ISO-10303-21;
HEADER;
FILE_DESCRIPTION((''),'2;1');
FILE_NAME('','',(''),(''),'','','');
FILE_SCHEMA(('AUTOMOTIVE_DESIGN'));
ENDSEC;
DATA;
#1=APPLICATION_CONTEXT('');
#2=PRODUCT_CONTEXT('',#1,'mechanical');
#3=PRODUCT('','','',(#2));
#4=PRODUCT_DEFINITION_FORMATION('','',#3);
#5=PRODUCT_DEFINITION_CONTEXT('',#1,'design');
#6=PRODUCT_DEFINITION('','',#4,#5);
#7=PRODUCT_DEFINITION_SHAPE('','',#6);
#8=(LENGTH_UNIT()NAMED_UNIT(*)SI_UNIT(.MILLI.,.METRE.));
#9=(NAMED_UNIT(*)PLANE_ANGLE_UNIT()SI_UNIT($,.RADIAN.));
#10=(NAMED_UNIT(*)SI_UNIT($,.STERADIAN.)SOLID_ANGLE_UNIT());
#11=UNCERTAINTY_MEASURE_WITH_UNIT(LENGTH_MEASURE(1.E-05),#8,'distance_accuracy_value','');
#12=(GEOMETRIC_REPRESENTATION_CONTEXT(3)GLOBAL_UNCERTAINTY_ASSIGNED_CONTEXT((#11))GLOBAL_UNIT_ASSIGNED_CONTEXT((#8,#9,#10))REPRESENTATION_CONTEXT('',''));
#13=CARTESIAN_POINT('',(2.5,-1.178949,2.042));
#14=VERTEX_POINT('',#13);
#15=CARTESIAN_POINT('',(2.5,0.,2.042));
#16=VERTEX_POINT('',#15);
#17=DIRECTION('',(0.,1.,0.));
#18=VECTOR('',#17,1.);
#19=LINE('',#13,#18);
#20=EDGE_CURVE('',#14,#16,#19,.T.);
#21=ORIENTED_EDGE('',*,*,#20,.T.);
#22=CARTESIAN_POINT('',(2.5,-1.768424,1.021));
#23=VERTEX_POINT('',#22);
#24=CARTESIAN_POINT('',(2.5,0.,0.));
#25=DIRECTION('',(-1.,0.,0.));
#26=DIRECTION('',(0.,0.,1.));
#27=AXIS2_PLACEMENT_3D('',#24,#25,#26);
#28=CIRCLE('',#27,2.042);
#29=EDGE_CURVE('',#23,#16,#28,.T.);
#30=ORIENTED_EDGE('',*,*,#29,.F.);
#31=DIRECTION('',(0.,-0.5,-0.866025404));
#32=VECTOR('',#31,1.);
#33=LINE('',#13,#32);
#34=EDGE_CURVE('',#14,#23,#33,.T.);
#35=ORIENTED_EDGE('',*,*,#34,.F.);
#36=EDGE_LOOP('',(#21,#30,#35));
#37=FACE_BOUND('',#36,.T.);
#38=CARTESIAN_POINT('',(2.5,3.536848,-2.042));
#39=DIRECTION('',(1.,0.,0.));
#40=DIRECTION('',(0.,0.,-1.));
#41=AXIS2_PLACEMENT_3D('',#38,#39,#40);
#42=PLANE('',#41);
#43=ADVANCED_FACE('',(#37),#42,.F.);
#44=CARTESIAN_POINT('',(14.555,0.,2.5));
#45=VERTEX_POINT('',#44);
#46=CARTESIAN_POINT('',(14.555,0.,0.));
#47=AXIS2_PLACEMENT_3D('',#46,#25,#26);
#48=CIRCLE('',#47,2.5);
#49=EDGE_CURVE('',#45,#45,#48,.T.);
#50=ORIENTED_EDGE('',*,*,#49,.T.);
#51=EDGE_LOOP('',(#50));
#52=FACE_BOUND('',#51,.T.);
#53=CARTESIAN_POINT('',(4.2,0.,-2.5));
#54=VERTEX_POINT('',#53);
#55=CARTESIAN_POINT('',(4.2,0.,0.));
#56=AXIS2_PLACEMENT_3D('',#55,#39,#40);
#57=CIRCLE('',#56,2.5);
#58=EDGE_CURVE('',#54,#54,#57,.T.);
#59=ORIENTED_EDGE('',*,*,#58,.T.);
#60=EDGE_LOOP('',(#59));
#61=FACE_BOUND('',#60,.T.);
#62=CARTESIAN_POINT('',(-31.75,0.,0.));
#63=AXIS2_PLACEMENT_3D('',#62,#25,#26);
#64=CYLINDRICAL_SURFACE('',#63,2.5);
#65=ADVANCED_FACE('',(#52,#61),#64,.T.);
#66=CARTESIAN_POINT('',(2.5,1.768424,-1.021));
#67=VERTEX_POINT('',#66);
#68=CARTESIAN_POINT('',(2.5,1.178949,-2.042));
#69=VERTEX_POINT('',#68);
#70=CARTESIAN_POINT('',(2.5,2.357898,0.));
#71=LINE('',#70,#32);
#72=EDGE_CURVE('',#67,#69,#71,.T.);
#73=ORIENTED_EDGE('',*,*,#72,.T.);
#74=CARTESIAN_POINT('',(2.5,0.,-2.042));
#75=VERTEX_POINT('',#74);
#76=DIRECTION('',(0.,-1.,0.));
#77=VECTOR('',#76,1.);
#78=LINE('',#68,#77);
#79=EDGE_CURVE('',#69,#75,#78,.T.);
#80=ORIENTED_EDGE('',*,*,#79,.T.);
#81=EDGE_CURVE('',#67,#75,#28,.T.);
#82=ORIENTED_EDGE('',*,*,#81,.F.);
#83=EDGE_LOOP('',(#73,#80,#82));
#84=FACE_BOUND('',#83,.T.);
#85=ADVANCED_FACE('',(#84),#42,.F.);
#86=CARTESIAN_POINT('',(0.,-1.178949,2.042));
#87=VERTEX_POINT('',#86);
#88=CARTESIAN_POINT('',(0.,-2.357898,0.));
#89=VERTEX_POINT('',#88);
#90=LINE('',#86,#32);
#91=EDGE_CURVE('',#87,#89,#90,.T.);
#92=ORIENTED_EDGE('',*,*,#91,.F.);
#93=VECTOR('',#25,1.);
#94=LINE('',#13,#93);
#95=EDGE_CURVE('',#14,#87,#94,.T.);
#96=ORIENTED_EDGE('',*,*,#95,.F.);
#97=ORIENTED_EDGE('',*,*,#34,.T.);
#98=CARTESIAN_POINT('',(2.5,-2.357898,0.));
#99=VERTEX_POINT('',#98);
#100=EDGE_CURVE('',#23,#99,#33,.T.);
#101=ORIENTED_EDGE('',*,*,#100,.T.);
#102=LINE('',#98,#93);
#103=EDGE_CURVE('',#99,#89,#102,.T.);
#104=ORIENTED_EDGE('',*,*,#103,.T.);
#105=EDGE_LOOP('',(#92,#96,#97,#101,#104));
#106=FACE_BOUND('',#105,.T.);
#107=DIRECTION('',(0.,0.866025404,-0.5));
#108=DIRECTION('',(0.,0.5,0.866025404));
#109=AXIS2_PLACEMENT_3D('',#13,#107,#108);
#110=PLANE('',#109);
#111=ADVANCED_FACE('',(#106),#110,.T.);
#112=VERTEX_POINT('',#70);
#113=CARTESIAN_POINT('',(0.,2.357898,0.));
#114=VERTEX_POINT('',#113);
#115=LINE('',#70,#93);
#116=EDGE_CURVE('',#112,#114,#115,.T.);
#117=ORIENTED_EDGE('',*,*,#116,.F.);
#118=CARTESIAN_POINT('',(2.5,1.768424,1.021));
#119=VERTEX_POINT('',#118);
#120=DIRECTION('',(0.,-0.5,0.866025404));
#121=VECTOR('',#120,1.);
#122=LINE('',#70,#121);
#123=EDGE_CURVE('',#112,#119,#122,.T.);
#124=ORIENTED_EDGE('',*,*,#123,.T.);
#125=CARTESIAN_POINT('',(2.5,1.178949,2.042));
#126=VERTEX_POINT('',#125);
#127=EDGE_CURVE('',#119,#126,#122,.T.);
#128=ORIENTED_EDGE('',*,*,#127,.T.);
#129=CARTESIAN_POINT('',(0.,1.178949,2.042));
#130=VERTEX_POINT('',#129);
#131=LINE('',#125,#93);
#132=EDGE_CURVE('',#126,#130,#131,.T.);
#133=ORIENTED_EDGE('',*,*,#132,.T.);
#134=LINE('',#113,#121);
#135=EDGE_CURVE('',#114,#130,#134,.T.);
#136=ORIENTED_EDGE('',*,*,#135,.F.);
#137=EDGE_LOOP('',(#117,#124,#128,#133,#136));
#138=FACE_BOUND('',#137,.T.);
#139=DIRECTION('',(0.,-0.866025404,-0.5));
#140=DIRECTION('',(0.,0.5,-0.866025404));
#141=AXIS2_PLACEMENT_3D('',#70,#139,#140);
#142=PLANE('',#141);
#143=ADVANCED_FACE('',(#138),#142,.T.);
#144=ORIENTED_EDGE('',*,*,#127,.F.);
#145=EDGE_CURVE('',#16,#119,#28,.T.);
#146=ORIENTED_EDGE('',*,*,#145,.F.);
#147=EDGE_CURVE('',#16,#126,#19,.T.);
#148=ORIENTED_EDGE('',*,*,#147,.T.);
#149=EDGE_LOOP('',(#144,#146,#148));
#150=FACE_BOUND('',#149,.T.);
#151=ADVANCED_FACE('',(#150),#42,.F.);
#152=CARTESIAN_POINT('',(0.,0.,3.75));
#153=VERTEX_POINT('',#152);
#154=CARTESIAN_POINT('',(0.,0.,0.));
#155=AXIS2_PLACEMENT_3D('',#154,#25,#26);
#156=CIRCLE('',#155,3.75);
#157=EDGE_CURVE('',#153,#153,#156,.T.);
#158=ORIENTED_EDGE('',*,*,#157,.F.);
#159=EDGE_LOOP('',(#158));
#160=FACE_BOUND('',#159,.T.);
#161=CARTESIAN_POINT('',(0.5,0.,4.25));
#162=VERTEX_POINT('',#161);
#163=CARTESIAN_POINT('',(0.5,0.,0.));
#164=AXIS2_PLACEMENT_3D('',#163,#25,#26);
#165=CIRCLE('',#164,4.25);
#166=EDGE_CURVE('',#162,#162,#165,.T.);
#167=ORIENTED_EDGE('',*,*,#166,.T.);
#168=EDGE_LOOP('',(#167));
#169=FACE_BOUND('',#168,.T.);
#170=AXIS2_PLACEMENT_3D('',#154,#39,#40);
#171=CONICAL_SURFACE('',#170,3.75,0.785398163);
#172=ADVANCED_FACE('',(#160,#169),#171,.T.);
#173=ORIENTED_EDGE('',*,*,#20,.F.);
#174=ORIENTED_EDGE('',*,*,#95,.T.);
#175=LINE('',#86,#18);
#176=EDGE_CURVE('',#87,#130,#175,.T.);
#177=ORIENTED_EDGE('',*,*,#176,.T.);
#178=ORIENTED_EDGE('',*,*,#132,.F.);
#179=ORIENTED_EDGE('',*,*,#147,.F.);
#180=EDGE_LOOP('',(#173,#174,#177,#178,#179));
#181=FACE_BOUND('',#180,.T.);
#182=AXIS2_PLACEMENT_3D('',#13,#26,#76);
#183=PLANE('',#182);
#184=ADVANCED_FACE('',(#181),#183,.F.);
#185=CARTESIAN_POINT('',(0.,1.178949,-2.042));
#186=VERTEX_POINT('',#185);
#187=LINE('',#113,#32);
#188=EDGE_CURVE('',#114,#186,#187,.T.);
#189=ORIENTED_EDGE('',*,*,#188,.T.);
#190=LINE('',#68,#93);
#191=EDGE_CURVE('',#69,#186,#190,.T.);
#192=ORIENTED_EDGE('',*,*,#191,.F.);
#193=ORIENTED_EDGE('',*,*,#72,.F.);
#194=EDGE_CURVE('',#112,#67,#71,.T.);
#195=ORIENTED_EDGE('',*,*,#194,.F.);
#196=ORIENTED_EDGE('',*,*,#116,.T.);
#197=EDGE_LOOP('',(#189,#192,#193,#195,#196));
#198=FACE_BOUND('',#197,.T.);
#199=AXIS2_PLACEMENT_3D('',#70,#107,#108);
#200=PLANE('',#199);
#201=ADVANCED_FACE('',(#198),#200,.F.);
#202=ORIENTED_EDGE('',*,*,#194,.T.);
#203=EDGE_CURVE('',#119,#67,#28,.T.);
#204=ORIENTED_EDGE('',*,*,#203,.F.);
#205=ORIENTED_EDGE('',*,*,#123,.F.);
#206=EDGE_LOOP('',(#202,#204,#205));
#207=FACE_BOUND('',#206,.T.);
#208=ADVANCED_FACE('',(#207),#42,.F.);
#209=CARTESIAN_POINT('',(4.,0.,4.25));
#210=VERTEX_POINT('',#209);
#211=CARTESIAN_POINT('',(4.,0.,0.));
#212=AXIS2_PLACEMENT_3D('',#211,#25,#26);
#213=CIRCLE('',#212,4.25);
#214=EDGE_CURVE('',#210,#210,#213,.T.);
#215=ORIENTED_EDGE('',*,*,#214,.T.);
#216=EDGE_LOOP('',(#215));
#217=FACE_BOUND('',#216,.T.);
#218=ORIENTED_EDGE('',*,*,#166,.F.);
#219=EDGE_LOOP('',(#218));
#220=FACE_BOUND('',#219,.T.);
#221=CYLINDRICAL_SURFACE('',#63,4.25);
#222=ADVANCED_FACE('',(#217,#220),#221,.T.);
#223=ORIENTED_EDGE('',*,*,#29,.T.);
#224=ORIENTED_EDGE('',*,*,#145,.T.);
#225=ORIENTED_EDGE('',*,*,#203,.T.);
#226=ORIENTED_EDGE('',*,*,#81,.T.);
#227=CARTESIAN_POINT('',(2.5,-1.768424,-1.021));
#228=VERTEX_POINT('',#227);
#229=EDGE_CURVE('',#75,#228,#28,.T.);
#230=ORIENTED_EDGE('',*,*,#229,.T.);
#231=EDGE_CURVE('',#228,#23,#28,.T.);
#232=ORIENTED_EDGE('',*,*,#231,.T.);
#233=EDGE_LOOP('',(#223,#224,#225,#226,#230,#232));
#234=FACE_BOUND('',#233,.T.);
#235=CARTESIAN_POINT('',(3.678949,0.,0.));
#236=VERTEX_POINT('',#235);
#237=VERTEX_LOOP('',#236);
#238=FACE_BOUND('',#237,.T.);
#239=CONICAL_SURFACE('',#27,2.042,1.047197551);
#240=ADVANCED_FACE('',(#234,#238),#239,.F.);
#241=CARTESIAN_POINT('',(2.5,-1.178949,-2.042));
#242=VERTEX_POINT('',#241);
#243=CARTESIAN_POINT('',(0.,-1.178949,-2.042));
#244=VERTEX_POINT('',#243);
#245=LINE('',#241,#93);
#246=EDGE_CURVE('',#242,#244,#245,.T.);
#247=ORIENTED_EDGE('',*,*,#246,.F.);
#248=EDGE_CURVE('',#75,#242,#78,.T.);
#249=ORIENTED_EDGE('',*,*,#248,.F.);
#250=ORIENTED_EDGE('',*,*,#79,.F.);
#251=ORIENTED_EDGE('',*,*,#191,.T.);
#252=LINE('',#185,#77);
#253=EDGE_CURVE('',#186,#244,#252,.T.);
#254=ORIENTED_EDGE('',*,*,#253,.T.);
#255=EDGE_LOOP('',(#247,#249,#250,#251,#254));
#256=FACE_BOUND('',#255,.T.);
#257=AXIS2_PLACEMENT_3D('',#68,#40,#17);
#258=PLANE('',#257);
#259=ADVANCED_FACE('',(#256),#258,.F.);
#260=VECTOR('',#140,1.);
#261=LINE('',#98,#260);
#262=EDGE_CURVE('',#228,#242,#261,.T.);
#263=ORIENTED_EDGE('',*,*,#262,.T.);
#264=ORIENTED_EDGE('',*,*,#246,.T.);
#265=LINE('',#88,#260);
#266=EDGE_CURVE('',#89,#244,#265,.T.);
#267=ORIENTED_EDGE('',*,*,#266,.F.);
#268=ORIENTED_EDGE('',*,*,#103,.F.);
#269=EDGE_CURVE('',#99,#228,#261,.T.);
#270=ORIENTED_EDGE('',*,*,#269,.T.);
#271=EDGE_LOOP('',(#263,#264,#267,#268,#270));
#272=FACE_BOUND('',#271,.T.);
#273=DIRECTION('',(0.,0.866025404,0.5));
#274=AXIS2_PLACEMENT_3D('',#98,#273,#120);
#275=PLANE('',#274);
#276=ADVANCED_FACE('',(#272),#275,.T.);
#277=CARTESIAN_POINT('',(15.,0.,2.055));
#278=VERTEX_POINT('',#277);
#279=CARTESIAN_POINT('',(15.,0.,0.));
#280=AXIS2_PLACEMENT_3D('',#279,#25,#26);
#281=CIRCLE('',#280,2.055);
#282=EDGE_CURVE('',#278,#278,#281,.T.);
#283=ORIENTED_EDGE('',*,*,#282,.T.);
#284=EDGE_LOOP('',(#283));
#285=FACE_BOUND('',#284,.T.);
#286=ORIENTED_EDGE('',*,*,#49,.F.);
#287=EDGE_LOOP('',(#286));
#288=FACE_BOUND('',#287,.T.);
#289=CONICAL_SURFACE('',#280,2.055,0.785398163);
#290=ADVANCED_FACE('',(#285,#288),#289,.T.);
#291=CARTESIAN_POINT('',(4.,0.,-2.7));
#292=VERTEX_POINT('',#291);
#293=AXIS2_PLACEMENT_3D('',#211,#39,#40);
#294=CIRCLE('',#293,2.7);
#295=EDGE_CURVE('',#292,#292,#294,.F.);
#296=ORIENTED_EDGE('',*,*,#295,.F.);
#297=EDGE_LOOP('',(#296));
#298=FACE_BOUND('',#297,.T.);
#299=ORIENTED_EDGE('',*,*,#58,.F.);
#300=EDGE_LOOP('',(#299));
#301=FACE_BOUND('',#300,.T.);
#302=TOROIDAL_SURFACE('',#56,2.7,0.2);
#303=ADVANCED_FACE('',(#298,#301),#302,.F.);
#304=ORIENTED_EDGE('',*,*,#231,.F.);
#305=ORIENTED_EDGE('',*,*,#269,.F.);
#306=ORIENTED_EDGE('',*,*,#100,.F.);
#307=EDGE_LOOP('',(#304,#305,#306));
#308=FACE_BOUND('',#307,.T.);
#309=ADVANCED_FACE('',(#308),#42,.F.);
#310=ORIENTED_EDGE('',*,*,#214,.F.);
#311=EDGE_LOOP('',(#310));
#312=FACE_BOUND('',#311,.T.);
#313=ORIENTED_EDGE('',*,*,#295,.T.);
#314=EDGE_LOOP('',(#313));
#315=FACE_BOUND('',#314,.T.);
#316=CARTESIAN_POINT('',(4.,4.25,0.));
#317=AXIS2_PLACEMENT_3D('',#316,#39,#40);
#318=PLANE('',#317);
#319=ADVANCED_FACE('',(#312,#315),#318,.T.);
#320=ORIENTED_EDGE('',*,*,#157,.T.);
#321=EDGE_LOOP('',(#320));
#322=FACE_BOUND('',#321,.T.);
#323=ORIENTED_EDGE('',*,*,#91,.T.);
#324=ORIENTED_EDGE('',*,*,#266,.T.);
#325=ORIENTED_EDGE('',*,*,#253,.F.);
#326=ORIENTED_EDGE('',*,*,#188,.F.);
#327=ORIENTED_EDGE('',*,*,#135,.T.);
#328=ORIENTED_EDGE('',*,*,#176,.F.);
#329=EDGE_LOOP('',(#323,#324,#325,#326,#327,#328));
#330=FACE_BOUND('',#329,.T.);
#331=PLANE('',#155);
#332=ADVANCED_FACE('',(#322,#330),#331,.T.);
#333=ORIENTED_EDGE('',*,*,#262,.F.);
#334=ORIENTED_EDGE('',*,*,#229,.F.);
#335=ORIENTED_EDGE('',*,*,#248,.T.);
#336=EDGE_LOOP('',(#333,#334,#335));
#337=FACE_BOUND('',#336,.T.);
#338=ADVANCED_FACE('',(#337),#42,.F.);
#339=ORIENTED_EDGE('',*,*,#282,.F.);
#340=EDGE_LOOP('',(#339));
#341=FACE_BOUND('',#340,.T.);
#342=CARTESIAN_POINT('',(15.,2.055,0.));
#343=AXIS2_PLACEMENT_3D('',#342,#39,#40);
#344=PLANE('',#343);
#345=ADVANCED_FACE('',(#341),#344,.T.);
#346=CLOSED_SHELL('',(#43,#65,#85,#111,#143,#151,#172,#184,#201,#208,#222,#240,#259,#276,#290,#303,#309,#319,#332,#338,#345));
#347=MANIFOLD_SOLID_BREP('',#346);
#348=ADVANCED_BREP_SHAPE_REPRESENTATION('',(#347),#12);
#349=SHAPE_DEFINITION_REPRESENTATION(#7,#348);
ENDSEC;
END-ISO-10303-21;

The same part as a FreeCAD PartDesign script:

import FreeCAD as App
import Part
import Sketcher
Q = App.Units.Quantity


def edges_at(feature, points):
    """Names of the edges that pass closest to the given points."""
    edges = feature.Shape.Edges
    near = lambda p: min(range(len(edges)), key=lambda i: edges[i].distToShape(Part.Vertex(*p))[0])
    return sorted({f"Edge{near(p) + 1}" for p in points})


def add_polygon(sketch, points):
    """Adds a closed chain of lines whose ends are joined by coincident constraints."""
    first, n = sketch.GeometryCount, len(points)
    for a, b in zip(points, points[1:] + points[:1]):
        sketch.addGeometry(Part.LineSegment(App.Vector(*a, 0), App.Vector(*b, 0)), False)
    for i in range(n):
        sketch.addConstraint(Sketcher.Constraint("Coincident", first + i, 2, first + (i + 1) % n, 1))

doc = App.newDocument("Part")
body = doc.addObject("PartDesign::Body", "Body")

# Sketch on XY plane
sketch1 = body.newObject("Sketcher::SketchObject", "Sketch")
sketch1.AttachmentSupport = (doc.getObject("XY_Plane"), [""])
sketch1.MapMode = "FlatFace"
add_polygon(sketch1, [(0, 3.8), (0, 0), (15, 0), (15, 2.1), (14.6, 2.5), (4, 2.5), (4, 4.2), (0.5, 4.2)])  # lines 0-7
sketch1.addConstraint([
    Sketcher.Constraint("Vertical", 0),
    Sketcher.Constraint("Horizontal", 1),
    Sketcher.Constraint("Vertical", 2),
    Sketcher.Constraint("Horizontal", 4),
    Sketcher.Constraint("Vertical", 5),
    Sketcher.Constraint("Horizontal", 6),
    Sketcher.Constraint("Coincident", 0, 2, -1, 1),
    Sketcher.Constraint("Perpendicular", 3, 7),
    Sketcher.Constraint("DistanceX", 1, 1, 1, 2, 15.0),
    Sketcher.Constraint("Angle", 3, Q("135 deg")),
    Sketcher.Constraint("DistanceX", 6, 2, 6, 1, 3.5),
    Sketcher.Constraint("DistanceX", -1, 1, 4, 2, 4.0),
    Sketcher.Constraint("DistanceY", 0, 2, 0, 1, 3.75),
    Sketcher.Constraint("DistanceY", 5, 1, 5, 2, 1.75),
    Sketcher.Constraint("DistanceX", 4, 2, 4, 1, 10.555),
])
revolution = body.newObject("PartDesign::Revolution", "Revolution")
revolution.Profile = sketch1
revolution.ReferenceAxis = (sketch1, ["H_Axis"])
revolution.Angle = 360
doc.recompute()

fillet = body.newObject("PartDesign::Fillet", "Fillet")
fillet.Base = (revolution, edges_at(revolution, [(4, -2.5, 0)]))
fillet.Radius = 0.2

# Sketch on XY plane
sketch2 = body.newObject("Sketcher::SketchObject", "Sketch001")
sketch2.AttachmentSupport = (doc.getObject("XY_Plane"), [""])
sketch2.MapMode = "FlatFace"
add_polygon(sketch2, [(2.5, 2), (0, 2), (0, 0), (3.7, 0)])  # lines 0-3
sketch2.addConstraint([
    Sketcher.Constraint("Horizontal", 0),
    Sketcher.Constraint("Vertical", 1),
    Sketcher.Constraint("Horizontal", 2),
    Sketcher.Constraint("Coincident", 1, 2, -1, 1),
    Sketcher.Constraint("Angle", 3, Q("120 deg")),
    Sketcher.Constraint("DistanceX", 0, 2, 0, 1, 2.5),
    Sketcher.Constraint("DistanceY", 1, 2, 1, 1, 2.042),
])
groove = body.newObject("PartDesign::Groove", "Groove")
groove.Profile = sketch2
groove.ReferenceAxis = (sketch2, ["H_Axis"])
groove.Angle = 360

# Sketch on YZ plane
sketch3 = body.newObject("Sketcher::SketchObject", "Sketch002")
sketch3.AttachmentSupport = (doc.getObject("YZ_Plane"), [""])
sketch3.MapMode = "FlatFace"
add_polygon(sketch3, [(2.4, 0), (1.2, -2), (-1.2, -2), (-2.4, 0), (-1.2, 2), (1.2, 2)])  # lines 0-5
sketch3.addConstraint([
    Sketcher.Constraint("Horizontal", 1),
    Sketcher.Constraint("Horizontal", 4),
    Sketcher.Constraint("Symmetric", 0, 2, 3, 2, -1, 1),
    Sketcher.Constraint("Symmetric", 2, 2, 5, 2, -1, 1),
    Sketcher.Constraint("PointOnObject", 2, 2, -1),
    Sketcher.Constraint("Parallel", 2, 5),
    Sketcher.Constraint("Vertical", 1, 2, 3, 2),
    Sketcher.Constraint("Angle", 0, Q("-120 deg")),
    Sketcher.Constraint("DistanceX", 1, 2, 1, 1, 2.357899),
    Sketcher.Constraint("DistanceY", 0, 2, -1, 1, 2.042),
])
pocket1 = body.newObject("PartDesign::Pocket", "Pocket")
pocket1.Profile = sketch3
pocket1.Length = 2.5
pocket1.Reversed = True

doc.recompute()
